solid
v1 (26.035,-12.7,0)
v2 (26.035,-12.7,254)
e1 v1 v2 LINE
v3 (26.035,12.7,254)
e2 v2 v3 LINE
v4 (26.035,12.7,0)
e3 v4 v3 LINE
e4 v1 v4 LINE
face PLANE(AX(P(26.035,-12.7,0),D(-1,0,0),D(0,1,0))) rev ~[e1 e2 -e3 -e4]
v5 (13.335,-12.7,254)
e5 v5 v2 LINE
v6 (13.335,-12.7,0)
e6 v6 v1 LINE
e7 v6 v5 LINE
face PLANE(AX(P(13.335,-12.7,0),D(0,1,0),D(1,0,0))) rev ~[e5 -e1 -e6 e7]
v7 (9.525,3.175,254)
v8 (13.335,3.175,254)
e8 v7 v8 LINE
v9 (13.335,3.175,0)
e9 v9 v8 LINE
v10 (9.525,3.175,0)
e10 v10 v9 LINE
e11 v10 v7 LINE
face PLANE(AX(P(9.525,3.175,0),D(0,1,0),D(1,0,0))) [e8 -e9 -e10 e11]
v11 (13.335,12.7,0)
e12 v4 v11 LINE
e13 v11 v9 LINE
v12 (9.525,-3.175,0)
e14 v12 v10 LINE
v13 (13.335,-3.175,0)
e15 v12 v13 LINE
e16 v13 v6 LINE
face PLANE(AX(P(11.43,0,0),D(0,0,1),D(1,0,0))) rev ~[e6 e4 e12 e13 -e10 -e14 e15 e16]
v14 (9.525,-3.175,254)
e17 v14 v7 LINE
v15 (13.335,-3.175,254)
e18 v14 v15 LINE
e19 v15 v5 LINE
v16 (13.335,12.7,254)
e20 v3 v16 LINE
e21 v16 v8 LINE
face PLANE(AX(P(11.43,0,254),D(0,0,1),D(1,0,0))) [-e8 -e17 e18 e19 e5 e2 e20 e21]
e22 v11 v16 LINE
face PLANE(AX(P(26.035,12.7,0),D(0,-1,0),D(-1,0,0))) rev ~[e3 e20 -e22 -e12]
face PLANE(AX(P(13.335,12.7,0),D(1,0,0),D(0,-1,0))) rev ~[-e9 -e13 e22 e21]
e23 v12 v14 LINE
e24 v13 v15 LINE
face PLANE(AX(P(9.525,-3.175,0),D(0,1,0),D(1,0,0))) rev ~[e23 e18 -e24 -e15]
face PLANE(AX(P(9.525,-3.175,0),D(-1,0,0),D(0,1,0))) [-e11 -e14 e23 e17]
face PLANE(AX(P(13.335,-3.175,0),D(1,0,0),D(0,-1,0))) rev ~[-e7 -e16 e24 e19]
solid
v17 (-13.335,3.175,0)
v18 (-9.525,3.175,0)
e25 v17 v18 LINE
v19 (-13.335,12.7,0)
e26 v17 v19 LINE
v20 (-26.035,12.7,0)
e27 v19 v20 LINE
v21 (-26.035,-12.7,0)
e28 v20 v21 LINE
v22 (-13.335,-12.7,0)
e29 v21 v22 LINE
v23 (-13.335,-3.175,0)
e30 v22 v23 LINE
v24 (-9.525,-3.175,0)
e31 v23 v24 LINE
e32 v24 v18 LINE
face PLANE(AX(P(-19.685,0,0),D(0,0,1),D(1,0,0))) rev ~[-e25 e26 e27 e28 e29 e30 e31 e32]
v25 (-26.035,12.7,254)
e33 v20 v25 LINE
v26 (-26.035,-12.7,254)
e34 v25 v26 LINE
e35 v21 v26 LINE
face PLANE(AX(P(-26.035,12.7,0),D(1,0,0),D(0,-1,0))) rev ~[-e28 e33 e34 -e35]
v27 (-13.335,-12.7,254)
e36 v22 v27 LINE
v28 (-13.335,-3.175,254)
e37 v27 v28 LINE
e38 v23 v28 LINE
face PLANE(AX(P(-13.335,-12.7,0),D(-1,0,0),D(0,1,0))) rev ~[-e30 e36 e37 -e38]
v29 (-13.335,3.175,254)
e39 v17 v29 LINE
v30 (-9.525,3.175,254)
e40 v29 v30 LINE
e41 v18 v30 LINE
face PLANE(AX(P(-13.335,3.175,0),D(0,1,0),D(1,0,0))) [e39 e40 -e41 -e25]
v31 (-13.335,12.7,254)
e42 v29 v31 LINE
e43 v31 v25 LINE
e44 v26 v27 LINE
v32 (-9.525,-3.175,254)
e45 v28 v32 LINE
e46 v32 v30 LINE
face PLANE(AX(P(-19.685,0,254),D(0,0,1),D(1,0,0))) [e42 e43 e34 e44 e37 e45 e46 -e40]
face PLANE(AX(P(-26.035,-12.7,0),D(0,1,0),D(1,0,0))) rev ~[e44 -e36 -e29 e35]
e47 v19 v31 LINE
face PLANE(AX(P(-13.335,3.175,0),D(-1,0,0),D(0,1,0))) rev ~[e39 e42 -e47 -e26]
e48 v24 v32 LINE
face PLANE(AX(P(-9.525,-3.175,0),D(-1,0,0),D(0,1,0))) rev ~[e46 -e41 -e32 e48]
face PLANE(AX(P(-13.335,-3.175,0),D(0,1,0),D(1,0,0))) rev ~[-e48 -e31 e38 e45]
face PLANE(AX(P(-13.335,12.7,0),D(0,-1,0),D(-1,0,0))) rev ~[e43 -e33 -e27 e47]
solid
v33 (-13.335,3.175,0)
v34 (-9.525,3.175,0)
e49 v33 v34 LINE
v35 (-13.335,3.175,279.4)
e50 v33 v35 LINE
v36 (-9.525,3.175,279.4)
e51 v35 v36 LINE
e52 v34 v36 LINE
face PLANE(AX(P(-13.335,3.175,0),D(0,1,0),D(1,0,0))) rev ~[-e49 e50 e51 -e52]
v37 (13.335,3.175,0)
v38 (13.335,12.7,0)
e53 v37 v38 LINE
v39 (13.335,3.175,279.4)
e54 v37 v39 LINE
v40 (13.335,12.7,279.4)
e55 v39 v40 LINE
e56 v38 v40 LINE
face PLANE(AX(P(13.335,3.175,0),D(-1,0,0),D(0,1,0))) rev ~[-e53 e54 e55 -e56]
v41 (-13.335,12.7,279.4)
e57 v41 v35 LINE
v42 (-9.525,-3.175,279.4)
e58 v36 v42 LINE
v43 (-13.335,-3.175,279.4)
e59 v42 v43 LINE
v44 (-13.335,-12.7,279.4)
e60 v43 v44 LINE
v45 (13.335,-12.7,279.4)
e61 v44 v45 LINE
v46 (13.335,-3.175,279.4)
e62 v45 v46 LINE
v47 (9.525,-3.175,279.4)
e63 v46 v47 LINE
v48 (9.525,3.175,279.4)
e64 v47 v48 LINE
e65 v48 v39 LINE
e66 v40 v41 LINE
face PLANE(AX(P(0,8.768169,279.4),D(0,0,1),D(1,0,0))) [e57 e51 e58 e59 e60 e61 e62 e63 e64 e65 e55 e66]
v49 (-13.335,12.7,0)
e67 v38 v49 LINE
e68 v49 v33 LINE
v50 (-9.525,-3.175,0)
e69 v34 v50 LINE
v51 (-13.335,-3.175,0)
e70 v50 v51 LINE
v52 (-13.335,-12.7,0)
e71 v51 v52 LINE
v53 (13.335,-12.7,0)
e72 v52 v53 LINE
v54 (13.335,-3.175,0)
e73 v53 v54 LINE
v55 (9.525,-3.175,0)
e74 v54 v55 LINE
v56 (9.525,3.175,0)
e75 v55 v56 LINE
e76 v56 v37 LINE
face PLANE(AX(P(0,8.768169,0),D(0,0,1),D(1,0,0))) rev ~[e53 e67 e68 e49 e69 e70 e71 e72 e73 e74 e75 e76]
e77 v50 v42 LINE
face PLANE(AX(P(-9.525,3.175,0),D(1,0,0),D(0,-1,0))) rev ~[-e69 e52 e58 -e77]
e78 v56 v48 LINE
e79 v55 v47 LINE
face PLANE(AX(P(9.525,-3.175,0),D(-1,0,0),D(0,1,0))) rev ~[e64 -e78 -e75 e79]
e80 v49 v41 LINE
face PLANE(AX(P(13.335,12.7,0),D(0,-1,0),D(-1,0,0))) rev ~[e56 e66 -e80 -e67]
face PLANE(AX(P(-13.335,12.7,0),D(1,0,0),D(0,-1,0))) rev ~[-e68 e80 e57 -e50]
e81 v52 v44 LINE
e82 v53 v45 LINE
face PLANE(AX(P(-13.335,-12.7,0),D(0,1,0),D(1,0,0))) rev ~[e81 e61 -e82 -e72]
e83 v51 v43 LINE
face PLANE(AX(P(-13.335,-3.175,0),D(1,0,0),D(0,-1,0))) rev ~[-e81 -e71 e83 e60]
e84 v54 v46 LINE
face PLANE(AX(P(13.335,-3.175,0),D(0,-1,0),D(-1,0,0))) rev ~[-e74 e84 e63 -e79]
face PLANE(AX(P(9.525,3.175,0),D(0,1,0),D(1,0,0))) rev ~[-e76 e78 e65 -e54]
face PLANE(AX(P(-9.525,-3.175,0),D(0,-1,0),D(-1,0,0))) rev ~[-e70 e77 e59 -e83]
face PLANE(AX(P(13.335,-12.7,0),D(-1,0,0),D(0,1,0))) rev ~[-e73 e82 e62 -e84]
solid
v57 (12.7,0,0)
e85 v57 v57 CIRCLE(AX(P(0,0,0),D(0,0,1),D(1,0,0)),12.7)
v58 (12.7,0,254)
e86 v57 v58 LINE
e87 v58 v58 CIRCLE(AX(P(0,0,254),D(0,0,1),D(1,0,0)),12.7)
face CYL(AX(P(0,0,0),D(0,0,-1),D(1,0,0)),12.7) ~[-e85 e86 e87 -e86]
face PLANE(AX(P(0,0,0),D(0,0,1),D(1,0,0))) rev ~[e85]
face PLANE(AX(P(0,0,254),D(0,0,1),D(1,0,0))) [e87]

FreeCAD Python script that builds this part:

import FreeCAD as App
import Part
import Sketcher
from FreeCAD import Vector
Q = App.Units.Quantity


def add_polygon(sketch, points):
    """Adds a closed chain of lines whose ends are joined by coincident constraints."""
    first, n = sketch.GeometryCount, len(points)
    for a, b in zip(points, points[1:] + points[:1]):
        sketch.addGeometry(Part.LineSegment(App.Vector(*a, 0), App.Vector(*b, 0)), False)
    for i in range(n):
        sketch.addConstraint(Sketcher.Constraint("Coincident", first + i, 2, first + (i + 1) % n, 1))

doc = App.newDocument("Part")
body = doc.addObject("PartDesign::Body", "Body")

sketch1 = doc.addObject("Sketcher::SketchObject", "Sketch")
body.addObject(sketch1)
sketch1.AttachmentSupport = (doc.XY_Plane, [""])
sketch1.MapMode = "FlatFace"
sketch1.addGeometry(Part.Circle(Vector(0, 0, 0), Vector(0, 0, 1), 12.7), False)
sketch1.addConstraint([
    Sketcher.Constraint("Coincident", 0, 3, -1, 1),
    Sketcher.Constraint("Diameter", 0, Q("1 in")),
])
pad1 = doc.addObject("PartDesign::Pad", "Pad")
body.addObject(pad1)
pad1.Profile = sketch1
pad1.Length = Q("10 in")
body2 = doc.addObject("PartDesign::Body", "Body001")
body2.AllowCompound = True

sketch2 = doc.addObject("Sketcher::SketchObject", "Sketch001")
body2.addObject(sketch2)
sketch2.AttachmentSupport = (doc.getObject("XY_Plane001"), [""])
sketch2.MapMode = "FlatFace"
add_polygon(sketch2, [(-13.335, -12.7), (-13.335, -3.175), (-9.525, -3.175), (-9.525, 3.175), (-13.335, 3.175), (-13.335, 12.7), (-26.035, 12.7), (-26.035, -12.7)])
add_polygon(sketch2, [(9.525, 3.175), (9.525, -3.175), (13.335, -3.175), (13.335, -12.7), (26.035, -12.7), (26.035, 12.7), (13.335, 12.7), (13.335, 3.175)])
sketch2.addConstraint([
    Sketcher.Constraint("Vertical", 0),
    Sketcher.Constraint("Horizontal", 1),
    Sketcher.Constraint("Vertical", 2),
    Sketcher.Constraint("Horizontal", 3),
    Sketcher.Constraint("Vertical", 4),
    Sketcher.Constraint("Horizontal", 5),
    Sketcher.Constraint("Vertical", 6),
    Sketcher.Constraint("Horizontal", 7),
    Sketcher.Constraint("Vertical", 8),
    Sketcher.Constraint("Horizontal", 9),
    Sketcher.Constraint("Vertical", 10),
    Sketcher.Constraint("Horizontal", 11),
    Sketcher.Constraint("Vertical", 12),
    Sketcher.Constraint("Horizontal", 13),
    Sketcher.Constraint("Vertical", 14),
    Sketcher.Constraint("Horizontal", 15),
    Sketcher.Constraint("Symmetric", 2, 2, 8, 2, -1, 1),
    Sketcher.Constraint("Symmetric", 4, 2, 10, 2, -1, 1),
    Sketcher.Constraint("Symmetric", 6, 2, 12, 2, -1, 1),
    Sketcher.Constraint("Symmetric", 0, 2, 14, 2, -1, 1),
    Sketcher.Constraint("Symmetric", 0, 2, 9, 2, -2),
    Sketcher.Constraint("Horizontal", 7, 2, 10, 2),
    Sketcher.Constraint("DistanceY", 6, 2, 6, 1, Q("1 in")),
    Sketcher.Constraint("DistanceX", 5, 2, 5, 1, Q("0.5 in")),
    Sketcher.Constraint("DistanceX", 1, 1, 1, 2, Q("0.15 in")),
    Sketcher.Constraint("DistanceY", 2, 1, 2, 2, Q("0.25 in")),
    Sketcher.Constraint("DistanceX", 0, 2, 8, 2, Q("0.9 in")),
])
pad2 = doc.addObject("PartDesign::Pad", "Pad001")
body2.addObject(pad2)
pad2.Profile = sketch2
pad2.Length = Q("10 in")
body3 = doc.addObject("PartDesign::Body", "Body002")

sketch3 = doc.addObject("Sketcher::SketchObject", "Sketch002")
body3.addObject(sketch3)
sketch3.AttachmentSupport = (doc.getObject("XY_Plane002"), [""])
sketch3.MapMode = "FlatFace"
add_polygon(sketch3, [(13.335, 3.175), (13.335, 12.7), (-13.335, 12.7), (-13.335, 3.175), (-9.525, 3.175), (-9.525, -3.175), (-13.335, -3.175), (-13.335, -12.7), (13.335, -12.7), (13.335, -3.175), (9.525, -3.175), (9.525, 3.175)])
sketch3.addConstraint([
    Sketcher.Constraint("Vertical", 0),
    Sketcher.Constraint("Horizontal", 1),
    Sketcher.Constraint("Vertical", 2),
    Sketcher.Constraint("Horizontal", 3),
    Sketcher.Constraint("Vertical", 4),
    Sketcher.Constraint("Horizontal", 5),
    Sketcher.Constraint("Vertical", 6),
    Sketcher.Constraint("Horizontal", 7),
    Sketcher.Constraint("Vertical", 8),
    Sketcher.Constraint("Horizontal", 9),
    Sketcher.Constraint("Vertical", 10),
    Sketcher.Constraint("Horizontal", 11),
    Sketcher.Constraint("Symmetric", 0, 2, 6, 2, -1, 1),
    Sketcher.Constraint("Symmetric", 2, 2, 8, 2, -1, 1),
    Sketcher.Constraint("Symmetric", 4, 2, 10, 2, -1, 1),
    Sketcher.Constraint("Symmetric", 5, 2, 8, 2, -2),
    Sketcher.Constraint("DistanceY", 6, 2, 1, 2, Q("1 in")),
    Sketcher.Constraint("DistanceX", 1, 2, 1, 1, Q("1.05 in")),
    Sketcher.Constraint("DistanceX", 3, 1, 3, 2, Q("0.15 in")),
    Sketcher.Constraint("DistanceY", 4, 2, 4, 1, Q("0.25 in")),
])
pad3 = doc.addObject("PartDesign::Pad", "Pad002")
body3.addObject(pad3)
pad3.Profile = sketch3
pad3.Length = Q("11 in")

doc.recompute()
